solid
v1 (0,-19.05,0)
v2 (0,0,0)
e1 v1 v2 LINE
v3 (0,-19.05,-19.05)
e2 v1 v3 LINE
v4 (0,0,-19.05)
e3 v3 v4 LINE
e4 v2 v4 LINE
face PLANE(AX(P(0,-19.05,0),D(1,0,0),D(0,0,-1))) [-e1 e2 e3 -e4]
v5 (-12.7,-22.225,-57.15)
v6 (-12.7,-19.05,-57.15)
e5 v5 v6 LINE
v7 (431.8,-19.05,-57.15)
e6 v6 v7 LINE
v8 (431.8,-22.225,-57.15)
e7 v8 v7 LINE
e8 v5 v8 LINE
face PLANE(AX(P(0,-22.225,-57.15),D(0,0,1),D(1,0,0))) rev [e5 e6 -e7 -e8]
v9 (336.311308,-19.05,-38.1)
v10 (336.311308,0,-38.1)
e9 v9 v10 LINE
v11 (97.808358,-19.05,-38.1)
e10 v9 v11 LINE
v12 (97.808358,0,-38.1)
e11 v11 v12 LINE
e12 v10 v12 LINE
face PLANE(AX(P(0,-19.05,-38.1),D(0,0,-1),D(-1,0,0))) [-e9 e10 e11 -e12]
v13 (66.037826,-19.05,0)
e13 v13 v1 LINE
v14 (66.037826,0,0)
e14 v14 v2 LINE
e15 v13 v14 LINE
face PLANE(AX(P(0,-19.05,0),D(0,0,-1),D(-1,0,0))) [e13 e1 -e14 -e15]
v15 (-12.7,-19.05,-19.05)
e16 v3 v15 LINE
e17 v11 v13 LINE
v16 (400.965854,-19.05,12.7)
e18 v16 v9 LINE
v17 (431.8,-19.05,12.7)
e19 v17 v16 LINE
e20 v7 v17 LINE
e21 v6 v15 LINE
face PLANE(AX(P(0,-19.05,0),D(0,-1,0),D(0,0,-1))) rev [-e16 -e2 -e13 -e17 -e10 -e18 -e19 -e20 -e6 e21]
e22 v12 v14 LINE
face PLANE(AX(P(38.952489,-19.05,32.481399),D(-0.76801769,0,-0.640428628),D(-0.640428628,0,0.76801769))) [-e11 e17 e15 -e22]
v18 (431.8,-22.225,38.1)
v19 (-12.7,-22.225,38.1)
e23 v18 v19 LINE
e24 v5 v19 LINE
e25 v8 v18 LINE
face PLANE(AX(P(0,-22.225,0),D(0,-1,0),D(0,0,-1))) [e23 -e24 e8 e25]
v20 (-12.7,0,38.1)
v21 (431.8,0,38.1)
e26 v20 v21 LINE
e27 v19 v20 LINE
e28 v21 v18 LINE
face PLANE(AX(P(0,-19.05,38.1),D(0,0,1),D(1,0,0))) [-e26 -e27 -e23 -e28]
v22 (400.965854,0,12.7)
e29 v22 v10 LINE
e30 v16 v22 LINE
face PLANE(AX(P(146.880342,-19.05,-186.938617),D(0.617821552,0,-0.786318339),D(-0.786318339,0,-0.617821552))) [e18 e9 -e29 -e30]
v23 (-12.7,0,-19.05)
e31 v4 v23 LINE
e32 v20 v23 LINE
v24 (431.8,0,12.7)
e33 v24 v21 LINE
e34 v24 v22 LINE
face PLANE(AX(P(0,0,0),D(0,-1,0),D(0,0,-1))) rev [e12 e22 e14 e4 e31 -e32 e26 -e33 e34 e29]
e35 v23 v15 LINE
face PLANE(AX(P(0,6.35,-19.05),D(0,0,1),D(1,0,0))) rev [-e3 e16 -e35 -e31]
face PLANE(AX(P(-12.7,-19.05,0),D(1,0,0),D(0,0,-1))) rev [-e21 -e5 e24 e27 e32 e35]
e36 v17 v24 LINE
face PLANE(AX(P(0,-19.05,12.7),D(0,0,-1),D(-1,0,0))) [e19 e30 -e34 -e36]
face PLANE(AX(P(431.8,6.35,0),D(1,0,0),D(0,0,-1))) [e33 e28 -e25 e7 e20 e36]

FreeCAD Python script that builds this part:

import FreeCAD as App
import Part
import Sketcher
from FreeCAD import Vector
Q = App.Units.Quantity

doc = App.newDocument("Part")
body = doc.addObject("PartDesign::Body", "Body")

sketch1 = body.newObject("Sketcher::SketchObject", "Sketch")
sketch1.AttachmentSupport = (doc.getObject("XZ_Plane"), [""])
sketch1.MapMode = "FlatFace"
sketch1.addGeometry([
    Part.LineSegment(Vector(57, -19, 0), Vector(0, -19, 0)),
    Part.LineSegment(Vector(0, -19, 0), Vector(0, 0, 0)),
    Part.LineSegment(Vector(0, 0, 0), Vector(66, 0, 0)),
    Part.LineSegment(Vector(66, 0, 0), Vector(98, -38, 0)),
    Part.LineSegment(Vector(98, -38, 0), Vector(336, -38, 0)),
    Part.LineSegment(Vector(336, -38, 0), Vector(401, 13, 0)),
    Part.LineSegment(Vector(401, 13, 0), Vector(432, 13, 0)),
    Part.LineSegment(Vector(432, 13, 0), Vector(343, -57, 0)),
    Part.LineSegment(Vector(343, -57, 0), Vector(89, -57, 0)),
    Part.LineSegment(Vector(89, -57, 0), Vector(57, -19, 0)),
], False)
sketch1.addConstraint([
    Sketcher.Constraint("Coincident", 0, 2, 1, 1),
    Sketcher.Constraint("Coincident", 1, 2, 2, 1),
    Sketcher.Constraint("Coincident", 2, 2, 3, 1),
    Sketcher.Constraint("Coincident", 3, 2, 4, 1),
    Sketcher.Constraint("Coincident", 4, 2, 5, 1),
    Sketcher.Constraint("Coincident", 5, 2, 6, 1),
    Sketcher.Constraint("Coincident", 6, 2, 7, 1),
    Sketcher.Constraint("Coincident", 7, 2, 8, 1),
    Sketcher.Constraint("Coincident", 8, 2, 9, 1),
    Sketcher.Constraint("Coincident", 9, 2, 0, 1),
    Sketcher.Constraint("Horizontal", 0),
    Sketcher.Constraint("Vertical", 1),
    Sketcher.Constraint("Horizontal", 2),
    Sketcher.Constraint("Horizontal", 4),
    Sketcher.Constraint("Horizontal", 6),
    Sketcher.Constraint("Horizontal", 8),
    Sketcher.Constraint("Coincident", 1, 2, -1, 1),
    Sketcher.Constraint("Parallel", 5, 7),
    Sketcher.Constraint("DistanceX", 8, 2, 8, 1, Q("10 in")),
    Sketcher.Constraint("DistanceX", -1, 1, 6, 2, Q("17 in")),
    Sketcher.Constraint("DistanceY", 4, 2, 5, 2, Q("2 in")),
    Sketcher.Constraint("DistanceX", 0, 2, 0, 1, Q("2.25 in")),
    Sketcher.Constraint("DistanceY", 1, 1, 1, 2, Q("0.75 in")),
    Sketcher.Constraint("DistanceY", 3, 2, -1, 1, Q("1.5 in")),
    Sketcher.Constraint("DistanceX", -1, 1, 7, 2, Q("13.5 in")),
    Sketcher.Constraint("DistanceY", 8, 2, 0, 2, Q("1.5 in")),
    Sketcher.Constraint("DistanceX", 4, 1, 4, 2, 238.50295),
    Sketcher.Constraint("DistanceX", 2, 1, 2, 2, 66.037826),
    Sketcher.Constraint("DistanceX", 6, 1, 6, 2, 30.834146),
])
pad1 = body.newObject("PartDesign::Pad", "Pad")
pad1.Profile = sketch1
pad1.Length = Q("0.75 in")
pad1.Reversed = True

sketch2 = body.newObject("Sketcher::SketchObject", "Sketch001")
sketch2.AttachmentSupport = (doc.getObject("XY_Plane"), [""])
sketch2.MapMode = "FlatFace"
sketch2.addGeometry([
    Part.Circle(Vector(8.9, 9.5, 0), Vector(0, 0, 1), 4),
    Part.Circle(Vector(56.5, 9.5, 0), Vector(0, 0, 1), 4),
], False)
sketch2.addConstraint([
    Sketcher.Constraint("Equal", 0, 1),
    Sketcher.Constraint("Horizontal", 0, 3, 1, 3),
    Sketcher.Constraint("Diameter", 0, Q("0.3125 in")),
    Sketcher.Constraint("DistanceX", -1, 1, 0, 3, Q("0.35 in")),
    Sketcher.Constraint("DistanceY", -1, 1, 0, 3, Q("0.375 in")),
    Sketcher.Constraint("DistanceX", -1, 1, 1, 3, Q("2.225 in")),
])
pocket1 = body.newObject("PartDesign::Pocket", "Pocket")
pocket1.Profile = sketch2
pocket1.Length = Q("0.75 in")

sketch3 = body.newObject("Sketcher::SketchObject", "Sketch002")
sketch3.AttachmentSupport = (doc.getObject("XZ_Plane"), [""])
sketch3.MapMode = "FlatFace"
sketch3.addGeometry([
    Part.LineSegment(Vector(-13, -114, 0), Vector(-13, 38, 0)),
    Part.LineSegment(Vector(-13, 38, 0), Vector(444, 38, 0)),
    Part.LineSegment(Vector(444, 38, 0), Vector(444, -114, 0)),
    Part.LineSegment(Vector(444, -114, 0), Vector(-13, -114, 0)),
], False)
sketch3.addConstraint([
    Sketcher.Constraint("Coincident", 0, 2, 1, 1),
    Sketcher.Constraint("Coincident", 1, 2, 2, 1),
    Sketcher.Constraint("Coincident", 2, 2, 3, 1),
    Sketcher.Constraint("Coincident", 3, 2, 0, 1),
    Sketcher.Constraint("Vertical", 0),
    Sketcher.Constraint("Horizontal", 1),
    Sketcher.Constraint("Vertical", 2),
    Sketcher.Constraint("Horizontal", 3),
    Sketcher.Constraint("DistanceX", 1, 1, 1, 2, Q("18 in")),
    Sketcher.Constraint("DistanceY", 0, 1, 0, 2, Q("6 in")),
    Sketcher.Constraint("DistanceX", 0, 2, -1, 1, Q("0.5 in")),
    Sketcher.Constraint("DistanceY", -1, 1, 0, 2, Q("1.5 in")),
])
pocket2 = body.newObject("PartDesign::Pocket", "Pocket001")
pocket2.Profile = sketch3
pocket2.Length = Q("1 in")
body2 = doc.addObject("PartDesign::Body", "Body001")

sketch4 = body2.newObject("Sketcher::SketchObject", "Sketch003")
sketch4.AttachmentSupport = (doc.getObject("XZ_Plane001"), [""])
sketch4.MapMode = "FlatFace"
sketch4.addGeometry([
    Part.LineSegment(Vector(-13, 38, 0), Vector(-13, -114, 0)),
    Part.LineSegment(Vector(-13, -114, 0), Vector(444, -114, 0)),
    Part.LineSegment(Vector(444, -114, 0), Vector(444, 38, 0)),
    Part.LineSegment(Vector(444, 38, 0), Vector(-13, 38, 0)),
    Part.LineSegment(Vector(336, -38, 0), Vector(401, 13, 0)),
    Part.LineSegment(Vector(401, 13, 0), Vector(432, 13, 0)),
    Part.LineSegment(Vector(432, 13, 0), Vector(343, -57, 0)),
    Part.LineSegment(Vector(343, -57, 0), Vector(89, -57, 0)),
    Part.LineSegment(Vector(89, -57, 0), Vector(57, -19, 0)),
    Part.LineSegment(Vector(57, -19, 0), Vector(0, -19, 0)),
    Part.LineSegment(Vector(0, -19, 0), Vector(0, 0, 0)),
    Part.LineSegment(Vector(0, 0, 0), Vector(66, 0, 0)),
    Part.LineSegment(Vector(66, 0, 0), Vector(98, -38, 0)),
    Part.LineSegment(Vector(98, -38, 0), Vector(336, -38, 0)),
], False)
sketch4.addConstraint([
    Sketcher.Constraint("Coincident", 0, 2, 1, 1),
    Sketcher.Constraint("Coincident", 1, 2, 2, 1),
    Sketcher.Constraint("Coincident", 2, 2, 3, 1),
    Sketcher.Constraint("Coincident", 3, 2, 0, 1),
    Sketcher.Constraint("Coincident", 4, 2, 5, 1),
    Sketcher.Constraint("Coincident", 5, 2, 6, 1),
    Sketcher.Constraint("Coincident", 6, 2, 7, 1),
    Sketcher.Constraint("Coincident", 7, 2, 8, 1),
    Sketcher.Constraint("Coincident", 8, 2, 9, 1),
    Sketcher.Constraint("Coincident", 9, 2, 10, 1),
    Sketcher.Constraint("Coincident", 10, 2, 11, 1),
    Sketcher.Constraint("Coincident", 11, 2, 12, 1),
    Sketcher.Constraint("Coincident", 12, 2, 13, 1),
    Sketcher.Constraint("Coincident", 13, 2, 4, 1),
    Sketcher.Constraint("Vertical", 0),
    Sketcher.Constraint("Horizontal", 1),
    Sketcher.Constraint("Vertical", 2),
    Sketcher.Constraint("Horizontal", 3),
    Sketcher.Constraint("Horizontal", 5),
    Sketcher.Constraint("Horizontal", 7),
    Sketcher.Constraint("Horizontal", 9),
    Sketcher.Constraint("Vertical", 10),
    Sketcher.Constraint("Horizontal", 11),
    Sketcher.Constraint("Horizontal", 13),
    Sketcher.Constraint("Coincident", 10, 2, -1, 1),
    Sketcher.Constraint("Parallel", 4, 6),
    Sketcher.Constraint("DistanceX", 1, 1, 1, 2, Q("18 in")),
    Sketcher.Constraint("DistanceX", 7, 2, 7, 1, Q("10 in")),
    Sketcher.Constraint("DistanceY", 0, 2, 0, 1, Q("6 in")),
    Sketcher.Constraint("DistanceX", -1, 1, 5, 2, Q("17 in")),
    Sketcher.Constraint("DistanceY", 4, 2, 2, 2, Q("1 in")),
    Sketcher.Constraint("DistanceX", 6, 2, 1, 2, Q("4 in")),
    Sketcher.Constraint("DistanceY", 13, 2, 4, 2, Q("2 in")),
    Sketcher.Constraint("DistanceX", 9, 2, 9, 1, Q("2.25 in")),
    Sketcher.Constraint("DistanceY", 10, 1, 10, 2, Q("0.75 in")),
    Sketcher.Constraint("DistanceX", 0, 2, -1, 1, Q("0.5 in")),
    Sketcher.Constraint("DistanceY", 0, 2, -1, 1, Q("4.5 in")),
    Sketcher.Constraint("DistanceY", 7, 2, 8, 2, Q("1.5 in")),
    Sketcher.Constraint("DistanceX", 13, 1, 13, 2, 238.50295),
    Sketcher.Constraint("DistanceX", 5, 1, 5, 2, 30.834146),
    Sketcher.Constraint("DistanceX", 11, 1, 11, 2, 66.037826),
])
pad2 = body2.newObject("PartDesign::Pad", "Pad001")
pad2.Profile = sketch4
pad2.Length = Q("0.75 in")

sketch5 = body2.newObject("Sketcher::SketchObject", "Sketch004")
sketch5.AttachmentSupport = (doc.getObject("XZ_Plane001"), [""])
sketch5.MapMode = "FlatFace"
sketch5.AttachmentOffset = App.Placement(Vector(0, 0, 0.75 * 25.4), App.Rotation())
sketch5.addGeometry([
    Part.LineSegment(Vector(57, -19, 0), Vector(-13, -19, 0)),
    Part.LineSegment(Vector(-13, -19, 0), Vector(-13, -114, 0)),
    Part.LineSegment(Vector(-13, -114, 0), Vector(444, -114, 0)),
    Part.LineSegment(Vector(444, -114, 0), Vector(444, 38, 0)),
    Part.LineSegment(Vector(444, 38, 0), Vector(432, 38, 0)),
    Part.LineSegment(Vector(432, 38, 0), Vector(432, 13, 0)),
    Part.LineSegment(Vector(432, 13, 0), Vector(343, -57, 0)),
    Part.LineSegment(Vector(343, -57, 0), Vector(89, -57, 0)),
    Part.LineSegment(Vector(89, -57, 0), Vector(57, -19, 0)),
], False)
sketch5.addConstraint([
    Sketcher.Constraint("Coincident", 0, 2, 1, 1),
    Sketcher.Constraint("Coincident", 1, 2, 2, 1),
    Sketcher.Constraint("Coincident", 2, 2, 3, 1),
    Sketcher.Constraint("Coincident", 3, 2, 4, 1),
    Sketcher.Constraint("Coincident", 4, 2, 5, 1),
    Sketcher.Constraint("Coincident", 5, 2, 6, 1),
    Sketcher.Constraint("Coincident", 6, 2, 7, 1),
    Sketcher.Constraint("Coincident", 7, 2, 8, 1),
    Sketcher.Constraint("Coincident", 8, 2, 0, 1),
    Sketcher.Constraint("Horizontal", 0),
    Sketcher.Constraint("Vertical", 1),
    Sketcher.Constraint("Horizontal", 2),
    Sketcher.Constraint("Vertical", 3),
    Sketcher.Constraint("Horizontal", 4),
    Sketcher.Constraint("Vertical", 5),
    Sketcher.Constraint("Horizontal", 7),
    Sketcher.Constraint("DistanceX", 2, 1, 2, 2, Q("18 in")),
    Sketcher.Constraint("DistanceX", 7, 2, 7, 1, Q("10 in")),
    Sketcher.Constraint("DistanceY", 3, 1, 3, 2, Q("6 in")),
    Sketcher.Constraint("DistanceY", 5, 2, 5, 1, Q("1 in")),
    Sketcher.Constraint("DistanceX", 4, 2, 4, 1, Q("0.5 in")),
    Sketcher.Constraint("DistanceX", -1, 1, 4, 2, Q("17 in")),
    Sketcher.Constraint("DistanceX", 6, 2, 2, 2, Q("4 in")),
    Sketcher.Constraint("DistanceX", 0, 2, 0, 1, Q("2.75 in")),
    Sketcher.Constraint("DistanceY", 1, 2, 1, 1, Q("3.75 in")),
    Sketcher.Constraint("DistanceY", 1, 2, -1, 1, Q("4.5 in")),
    Sketcher.Constraint("DistanceY", 6, 2, 0, 2, Q("1.5 in")),
])
pocket3 = body2.newObject("PartDesign::Pocket", "Pocket002")
pocket3.Profile = sketch5
pocket3.Length = Q("1 in")

sketch6 = body2.newObject("Sketcher::SketchObject", "Sketch005")
sketch6.AttachmentSupport = (doc.getObject("XZ_Plane001"), [""])
sketch6.MapMode = "FlatFace"
sketch6.AttachmentOffset = App.Placement(Vector(0, 0, 0.75 * 25.4), App.Rotation())
sketch6.addGeometry([
    Part.LineSegment(Vector(-13, 38, 0), Vector(-13, -57, 0)),
    Part.LineSegment(Vector(-13, -57, 0), Vector(432, -57, 0)),
    Part.LineSegment(Vector(432, -57, 0), Vector(432, 38, 0)),
    Part.LineSegment(Vector(432, 38, 0), Vector(-13, 38, 0)),
], False)
sketch6.addConstraint([
    Sketcher.Constraint("Coincident", 0, 2, 1, 1),
    Sketcher.Constraint("Coincident", 1, 2, 2, 1),
    Sketcher.Constraint("Coincident", 2, 2, 3, 1),
    Sketcher.Constraint("Coincident", 3, 2, 0, 1),
    Sketcher.Constraint("Vertical", 0),
    Sketcher.Constraint("Horizontal", 1),
    Sketcher.Constraint("Vertical", 2),
    Sketcher.Constraint("Horizontal", 3),
    Sketcher.Constraint("DistanceX", 1, 1, 1, 2, Q("17.5 in")),
    Sketcher.Constraint("DistanceX", -1, 1, 1, 2, Q("17 in")),
    Sketcher.Constraint("DistanceY", 0, 2, 0, 1, Q("3.75 in")),
    Sketcher.Constraint("DistanceY", -1, 1, 2, 2, Q("1.5 in")),
])
pad3 = body2.newObject("PartDesign::Pad", "Pad002")
pad3.Profile = sketch6
pad3.Length = Q("0.125 in")

doc.recompute()
